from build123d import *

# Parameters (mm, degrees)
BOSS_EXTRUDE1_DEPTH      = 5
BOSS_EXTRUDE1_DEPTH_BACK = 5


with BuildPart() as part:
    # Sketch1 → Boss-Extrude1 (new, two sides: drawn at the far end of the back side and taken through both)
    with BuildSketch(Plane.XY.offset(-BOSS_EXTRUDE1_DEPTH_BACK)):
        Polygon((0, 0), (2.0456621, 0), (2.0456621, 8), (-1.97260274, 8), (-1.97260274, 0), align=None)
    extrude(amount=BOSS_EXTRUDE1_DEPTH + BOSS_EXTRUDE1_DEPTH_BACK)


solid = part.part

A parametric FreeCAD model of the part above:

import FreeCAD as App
import Part
import Sketcher

doc = App.newDocument("Part")
body = doc.addObject("PartDesign::Body", "Body")

# Sketch on XY plane
sketch1 = body.newObject("Sketcher::SketchObject", "Sketch")
sketch1.AttachmentSupport = (doc.getObject("XY_Plane"), [""])
sketch1.MapMode = "FlatFace"
sketch1.addGeometry(Part.LineSegment(App.Vector(2, 0, 0), App.Vector(2, 8, 0)), False)
sketch1.addGeometry(Part.LineSegment(App.Vector(2, 8, 0), App.Vector(-2, 8, 0)), False)
sketch1.addGeometry(Part.LineSegment(App.Vector(-2, 8, 0), App.Vector(-2, 0, 0)), False)
sketch1.addGeometry(Part.LineSegment(App.Vector(-2, 0, 0), App.Vector(2, 0, 0)), False)
sketch1.addConstraint(Sketcher.Constraint("Coincident", 0, 2, 1, 1))
sketch1.addConstraint(Sketcher.Constraint("Coincident", 1, 2, 2, 1))
sketch1.addConstraint(Sketcher.Constraint("Coincident", 2, 2, 3, 1))
sketch1.addConstraint(Sketcher.Constraint("Coincident", 3, 2, 0, 1))
sketch1.addConstraint(Sketcher.Constraint("Vertical", 0))
sketch1.addConstraint(Sketcher.Constraint("Horizontal", 1))
sketch1.addConstraint(Sketcher.Constraint("Vertical", 2))
sketch1.addConstraint(Sketcher.Constraint("Horizontal", 3))
sketch1.addConstraint(Sketcher.Constraint("PointOnObject", 2, 2, -1))
sketch1.addConstraint(Sketcher.Constraint("DistanceY", 0, 1, 0, 2, 8.0))
sketch1.addConstraint(Sketcher.Constraint("DistanceX", 1, 2, 1, 1, 4.018265))
sketch1.addConstraint(Sketcher.Constraint("DistanceX", -1, 1, 0, 2, 2.045662))
pad1 = body.newObject("PartDesign::Pad", "Pad")
pad1.Profile = sketch1
pad1.Type = "TwoLengths"
pad1.Length = 5
pad1.Length2 = 5

doc.recompute()
